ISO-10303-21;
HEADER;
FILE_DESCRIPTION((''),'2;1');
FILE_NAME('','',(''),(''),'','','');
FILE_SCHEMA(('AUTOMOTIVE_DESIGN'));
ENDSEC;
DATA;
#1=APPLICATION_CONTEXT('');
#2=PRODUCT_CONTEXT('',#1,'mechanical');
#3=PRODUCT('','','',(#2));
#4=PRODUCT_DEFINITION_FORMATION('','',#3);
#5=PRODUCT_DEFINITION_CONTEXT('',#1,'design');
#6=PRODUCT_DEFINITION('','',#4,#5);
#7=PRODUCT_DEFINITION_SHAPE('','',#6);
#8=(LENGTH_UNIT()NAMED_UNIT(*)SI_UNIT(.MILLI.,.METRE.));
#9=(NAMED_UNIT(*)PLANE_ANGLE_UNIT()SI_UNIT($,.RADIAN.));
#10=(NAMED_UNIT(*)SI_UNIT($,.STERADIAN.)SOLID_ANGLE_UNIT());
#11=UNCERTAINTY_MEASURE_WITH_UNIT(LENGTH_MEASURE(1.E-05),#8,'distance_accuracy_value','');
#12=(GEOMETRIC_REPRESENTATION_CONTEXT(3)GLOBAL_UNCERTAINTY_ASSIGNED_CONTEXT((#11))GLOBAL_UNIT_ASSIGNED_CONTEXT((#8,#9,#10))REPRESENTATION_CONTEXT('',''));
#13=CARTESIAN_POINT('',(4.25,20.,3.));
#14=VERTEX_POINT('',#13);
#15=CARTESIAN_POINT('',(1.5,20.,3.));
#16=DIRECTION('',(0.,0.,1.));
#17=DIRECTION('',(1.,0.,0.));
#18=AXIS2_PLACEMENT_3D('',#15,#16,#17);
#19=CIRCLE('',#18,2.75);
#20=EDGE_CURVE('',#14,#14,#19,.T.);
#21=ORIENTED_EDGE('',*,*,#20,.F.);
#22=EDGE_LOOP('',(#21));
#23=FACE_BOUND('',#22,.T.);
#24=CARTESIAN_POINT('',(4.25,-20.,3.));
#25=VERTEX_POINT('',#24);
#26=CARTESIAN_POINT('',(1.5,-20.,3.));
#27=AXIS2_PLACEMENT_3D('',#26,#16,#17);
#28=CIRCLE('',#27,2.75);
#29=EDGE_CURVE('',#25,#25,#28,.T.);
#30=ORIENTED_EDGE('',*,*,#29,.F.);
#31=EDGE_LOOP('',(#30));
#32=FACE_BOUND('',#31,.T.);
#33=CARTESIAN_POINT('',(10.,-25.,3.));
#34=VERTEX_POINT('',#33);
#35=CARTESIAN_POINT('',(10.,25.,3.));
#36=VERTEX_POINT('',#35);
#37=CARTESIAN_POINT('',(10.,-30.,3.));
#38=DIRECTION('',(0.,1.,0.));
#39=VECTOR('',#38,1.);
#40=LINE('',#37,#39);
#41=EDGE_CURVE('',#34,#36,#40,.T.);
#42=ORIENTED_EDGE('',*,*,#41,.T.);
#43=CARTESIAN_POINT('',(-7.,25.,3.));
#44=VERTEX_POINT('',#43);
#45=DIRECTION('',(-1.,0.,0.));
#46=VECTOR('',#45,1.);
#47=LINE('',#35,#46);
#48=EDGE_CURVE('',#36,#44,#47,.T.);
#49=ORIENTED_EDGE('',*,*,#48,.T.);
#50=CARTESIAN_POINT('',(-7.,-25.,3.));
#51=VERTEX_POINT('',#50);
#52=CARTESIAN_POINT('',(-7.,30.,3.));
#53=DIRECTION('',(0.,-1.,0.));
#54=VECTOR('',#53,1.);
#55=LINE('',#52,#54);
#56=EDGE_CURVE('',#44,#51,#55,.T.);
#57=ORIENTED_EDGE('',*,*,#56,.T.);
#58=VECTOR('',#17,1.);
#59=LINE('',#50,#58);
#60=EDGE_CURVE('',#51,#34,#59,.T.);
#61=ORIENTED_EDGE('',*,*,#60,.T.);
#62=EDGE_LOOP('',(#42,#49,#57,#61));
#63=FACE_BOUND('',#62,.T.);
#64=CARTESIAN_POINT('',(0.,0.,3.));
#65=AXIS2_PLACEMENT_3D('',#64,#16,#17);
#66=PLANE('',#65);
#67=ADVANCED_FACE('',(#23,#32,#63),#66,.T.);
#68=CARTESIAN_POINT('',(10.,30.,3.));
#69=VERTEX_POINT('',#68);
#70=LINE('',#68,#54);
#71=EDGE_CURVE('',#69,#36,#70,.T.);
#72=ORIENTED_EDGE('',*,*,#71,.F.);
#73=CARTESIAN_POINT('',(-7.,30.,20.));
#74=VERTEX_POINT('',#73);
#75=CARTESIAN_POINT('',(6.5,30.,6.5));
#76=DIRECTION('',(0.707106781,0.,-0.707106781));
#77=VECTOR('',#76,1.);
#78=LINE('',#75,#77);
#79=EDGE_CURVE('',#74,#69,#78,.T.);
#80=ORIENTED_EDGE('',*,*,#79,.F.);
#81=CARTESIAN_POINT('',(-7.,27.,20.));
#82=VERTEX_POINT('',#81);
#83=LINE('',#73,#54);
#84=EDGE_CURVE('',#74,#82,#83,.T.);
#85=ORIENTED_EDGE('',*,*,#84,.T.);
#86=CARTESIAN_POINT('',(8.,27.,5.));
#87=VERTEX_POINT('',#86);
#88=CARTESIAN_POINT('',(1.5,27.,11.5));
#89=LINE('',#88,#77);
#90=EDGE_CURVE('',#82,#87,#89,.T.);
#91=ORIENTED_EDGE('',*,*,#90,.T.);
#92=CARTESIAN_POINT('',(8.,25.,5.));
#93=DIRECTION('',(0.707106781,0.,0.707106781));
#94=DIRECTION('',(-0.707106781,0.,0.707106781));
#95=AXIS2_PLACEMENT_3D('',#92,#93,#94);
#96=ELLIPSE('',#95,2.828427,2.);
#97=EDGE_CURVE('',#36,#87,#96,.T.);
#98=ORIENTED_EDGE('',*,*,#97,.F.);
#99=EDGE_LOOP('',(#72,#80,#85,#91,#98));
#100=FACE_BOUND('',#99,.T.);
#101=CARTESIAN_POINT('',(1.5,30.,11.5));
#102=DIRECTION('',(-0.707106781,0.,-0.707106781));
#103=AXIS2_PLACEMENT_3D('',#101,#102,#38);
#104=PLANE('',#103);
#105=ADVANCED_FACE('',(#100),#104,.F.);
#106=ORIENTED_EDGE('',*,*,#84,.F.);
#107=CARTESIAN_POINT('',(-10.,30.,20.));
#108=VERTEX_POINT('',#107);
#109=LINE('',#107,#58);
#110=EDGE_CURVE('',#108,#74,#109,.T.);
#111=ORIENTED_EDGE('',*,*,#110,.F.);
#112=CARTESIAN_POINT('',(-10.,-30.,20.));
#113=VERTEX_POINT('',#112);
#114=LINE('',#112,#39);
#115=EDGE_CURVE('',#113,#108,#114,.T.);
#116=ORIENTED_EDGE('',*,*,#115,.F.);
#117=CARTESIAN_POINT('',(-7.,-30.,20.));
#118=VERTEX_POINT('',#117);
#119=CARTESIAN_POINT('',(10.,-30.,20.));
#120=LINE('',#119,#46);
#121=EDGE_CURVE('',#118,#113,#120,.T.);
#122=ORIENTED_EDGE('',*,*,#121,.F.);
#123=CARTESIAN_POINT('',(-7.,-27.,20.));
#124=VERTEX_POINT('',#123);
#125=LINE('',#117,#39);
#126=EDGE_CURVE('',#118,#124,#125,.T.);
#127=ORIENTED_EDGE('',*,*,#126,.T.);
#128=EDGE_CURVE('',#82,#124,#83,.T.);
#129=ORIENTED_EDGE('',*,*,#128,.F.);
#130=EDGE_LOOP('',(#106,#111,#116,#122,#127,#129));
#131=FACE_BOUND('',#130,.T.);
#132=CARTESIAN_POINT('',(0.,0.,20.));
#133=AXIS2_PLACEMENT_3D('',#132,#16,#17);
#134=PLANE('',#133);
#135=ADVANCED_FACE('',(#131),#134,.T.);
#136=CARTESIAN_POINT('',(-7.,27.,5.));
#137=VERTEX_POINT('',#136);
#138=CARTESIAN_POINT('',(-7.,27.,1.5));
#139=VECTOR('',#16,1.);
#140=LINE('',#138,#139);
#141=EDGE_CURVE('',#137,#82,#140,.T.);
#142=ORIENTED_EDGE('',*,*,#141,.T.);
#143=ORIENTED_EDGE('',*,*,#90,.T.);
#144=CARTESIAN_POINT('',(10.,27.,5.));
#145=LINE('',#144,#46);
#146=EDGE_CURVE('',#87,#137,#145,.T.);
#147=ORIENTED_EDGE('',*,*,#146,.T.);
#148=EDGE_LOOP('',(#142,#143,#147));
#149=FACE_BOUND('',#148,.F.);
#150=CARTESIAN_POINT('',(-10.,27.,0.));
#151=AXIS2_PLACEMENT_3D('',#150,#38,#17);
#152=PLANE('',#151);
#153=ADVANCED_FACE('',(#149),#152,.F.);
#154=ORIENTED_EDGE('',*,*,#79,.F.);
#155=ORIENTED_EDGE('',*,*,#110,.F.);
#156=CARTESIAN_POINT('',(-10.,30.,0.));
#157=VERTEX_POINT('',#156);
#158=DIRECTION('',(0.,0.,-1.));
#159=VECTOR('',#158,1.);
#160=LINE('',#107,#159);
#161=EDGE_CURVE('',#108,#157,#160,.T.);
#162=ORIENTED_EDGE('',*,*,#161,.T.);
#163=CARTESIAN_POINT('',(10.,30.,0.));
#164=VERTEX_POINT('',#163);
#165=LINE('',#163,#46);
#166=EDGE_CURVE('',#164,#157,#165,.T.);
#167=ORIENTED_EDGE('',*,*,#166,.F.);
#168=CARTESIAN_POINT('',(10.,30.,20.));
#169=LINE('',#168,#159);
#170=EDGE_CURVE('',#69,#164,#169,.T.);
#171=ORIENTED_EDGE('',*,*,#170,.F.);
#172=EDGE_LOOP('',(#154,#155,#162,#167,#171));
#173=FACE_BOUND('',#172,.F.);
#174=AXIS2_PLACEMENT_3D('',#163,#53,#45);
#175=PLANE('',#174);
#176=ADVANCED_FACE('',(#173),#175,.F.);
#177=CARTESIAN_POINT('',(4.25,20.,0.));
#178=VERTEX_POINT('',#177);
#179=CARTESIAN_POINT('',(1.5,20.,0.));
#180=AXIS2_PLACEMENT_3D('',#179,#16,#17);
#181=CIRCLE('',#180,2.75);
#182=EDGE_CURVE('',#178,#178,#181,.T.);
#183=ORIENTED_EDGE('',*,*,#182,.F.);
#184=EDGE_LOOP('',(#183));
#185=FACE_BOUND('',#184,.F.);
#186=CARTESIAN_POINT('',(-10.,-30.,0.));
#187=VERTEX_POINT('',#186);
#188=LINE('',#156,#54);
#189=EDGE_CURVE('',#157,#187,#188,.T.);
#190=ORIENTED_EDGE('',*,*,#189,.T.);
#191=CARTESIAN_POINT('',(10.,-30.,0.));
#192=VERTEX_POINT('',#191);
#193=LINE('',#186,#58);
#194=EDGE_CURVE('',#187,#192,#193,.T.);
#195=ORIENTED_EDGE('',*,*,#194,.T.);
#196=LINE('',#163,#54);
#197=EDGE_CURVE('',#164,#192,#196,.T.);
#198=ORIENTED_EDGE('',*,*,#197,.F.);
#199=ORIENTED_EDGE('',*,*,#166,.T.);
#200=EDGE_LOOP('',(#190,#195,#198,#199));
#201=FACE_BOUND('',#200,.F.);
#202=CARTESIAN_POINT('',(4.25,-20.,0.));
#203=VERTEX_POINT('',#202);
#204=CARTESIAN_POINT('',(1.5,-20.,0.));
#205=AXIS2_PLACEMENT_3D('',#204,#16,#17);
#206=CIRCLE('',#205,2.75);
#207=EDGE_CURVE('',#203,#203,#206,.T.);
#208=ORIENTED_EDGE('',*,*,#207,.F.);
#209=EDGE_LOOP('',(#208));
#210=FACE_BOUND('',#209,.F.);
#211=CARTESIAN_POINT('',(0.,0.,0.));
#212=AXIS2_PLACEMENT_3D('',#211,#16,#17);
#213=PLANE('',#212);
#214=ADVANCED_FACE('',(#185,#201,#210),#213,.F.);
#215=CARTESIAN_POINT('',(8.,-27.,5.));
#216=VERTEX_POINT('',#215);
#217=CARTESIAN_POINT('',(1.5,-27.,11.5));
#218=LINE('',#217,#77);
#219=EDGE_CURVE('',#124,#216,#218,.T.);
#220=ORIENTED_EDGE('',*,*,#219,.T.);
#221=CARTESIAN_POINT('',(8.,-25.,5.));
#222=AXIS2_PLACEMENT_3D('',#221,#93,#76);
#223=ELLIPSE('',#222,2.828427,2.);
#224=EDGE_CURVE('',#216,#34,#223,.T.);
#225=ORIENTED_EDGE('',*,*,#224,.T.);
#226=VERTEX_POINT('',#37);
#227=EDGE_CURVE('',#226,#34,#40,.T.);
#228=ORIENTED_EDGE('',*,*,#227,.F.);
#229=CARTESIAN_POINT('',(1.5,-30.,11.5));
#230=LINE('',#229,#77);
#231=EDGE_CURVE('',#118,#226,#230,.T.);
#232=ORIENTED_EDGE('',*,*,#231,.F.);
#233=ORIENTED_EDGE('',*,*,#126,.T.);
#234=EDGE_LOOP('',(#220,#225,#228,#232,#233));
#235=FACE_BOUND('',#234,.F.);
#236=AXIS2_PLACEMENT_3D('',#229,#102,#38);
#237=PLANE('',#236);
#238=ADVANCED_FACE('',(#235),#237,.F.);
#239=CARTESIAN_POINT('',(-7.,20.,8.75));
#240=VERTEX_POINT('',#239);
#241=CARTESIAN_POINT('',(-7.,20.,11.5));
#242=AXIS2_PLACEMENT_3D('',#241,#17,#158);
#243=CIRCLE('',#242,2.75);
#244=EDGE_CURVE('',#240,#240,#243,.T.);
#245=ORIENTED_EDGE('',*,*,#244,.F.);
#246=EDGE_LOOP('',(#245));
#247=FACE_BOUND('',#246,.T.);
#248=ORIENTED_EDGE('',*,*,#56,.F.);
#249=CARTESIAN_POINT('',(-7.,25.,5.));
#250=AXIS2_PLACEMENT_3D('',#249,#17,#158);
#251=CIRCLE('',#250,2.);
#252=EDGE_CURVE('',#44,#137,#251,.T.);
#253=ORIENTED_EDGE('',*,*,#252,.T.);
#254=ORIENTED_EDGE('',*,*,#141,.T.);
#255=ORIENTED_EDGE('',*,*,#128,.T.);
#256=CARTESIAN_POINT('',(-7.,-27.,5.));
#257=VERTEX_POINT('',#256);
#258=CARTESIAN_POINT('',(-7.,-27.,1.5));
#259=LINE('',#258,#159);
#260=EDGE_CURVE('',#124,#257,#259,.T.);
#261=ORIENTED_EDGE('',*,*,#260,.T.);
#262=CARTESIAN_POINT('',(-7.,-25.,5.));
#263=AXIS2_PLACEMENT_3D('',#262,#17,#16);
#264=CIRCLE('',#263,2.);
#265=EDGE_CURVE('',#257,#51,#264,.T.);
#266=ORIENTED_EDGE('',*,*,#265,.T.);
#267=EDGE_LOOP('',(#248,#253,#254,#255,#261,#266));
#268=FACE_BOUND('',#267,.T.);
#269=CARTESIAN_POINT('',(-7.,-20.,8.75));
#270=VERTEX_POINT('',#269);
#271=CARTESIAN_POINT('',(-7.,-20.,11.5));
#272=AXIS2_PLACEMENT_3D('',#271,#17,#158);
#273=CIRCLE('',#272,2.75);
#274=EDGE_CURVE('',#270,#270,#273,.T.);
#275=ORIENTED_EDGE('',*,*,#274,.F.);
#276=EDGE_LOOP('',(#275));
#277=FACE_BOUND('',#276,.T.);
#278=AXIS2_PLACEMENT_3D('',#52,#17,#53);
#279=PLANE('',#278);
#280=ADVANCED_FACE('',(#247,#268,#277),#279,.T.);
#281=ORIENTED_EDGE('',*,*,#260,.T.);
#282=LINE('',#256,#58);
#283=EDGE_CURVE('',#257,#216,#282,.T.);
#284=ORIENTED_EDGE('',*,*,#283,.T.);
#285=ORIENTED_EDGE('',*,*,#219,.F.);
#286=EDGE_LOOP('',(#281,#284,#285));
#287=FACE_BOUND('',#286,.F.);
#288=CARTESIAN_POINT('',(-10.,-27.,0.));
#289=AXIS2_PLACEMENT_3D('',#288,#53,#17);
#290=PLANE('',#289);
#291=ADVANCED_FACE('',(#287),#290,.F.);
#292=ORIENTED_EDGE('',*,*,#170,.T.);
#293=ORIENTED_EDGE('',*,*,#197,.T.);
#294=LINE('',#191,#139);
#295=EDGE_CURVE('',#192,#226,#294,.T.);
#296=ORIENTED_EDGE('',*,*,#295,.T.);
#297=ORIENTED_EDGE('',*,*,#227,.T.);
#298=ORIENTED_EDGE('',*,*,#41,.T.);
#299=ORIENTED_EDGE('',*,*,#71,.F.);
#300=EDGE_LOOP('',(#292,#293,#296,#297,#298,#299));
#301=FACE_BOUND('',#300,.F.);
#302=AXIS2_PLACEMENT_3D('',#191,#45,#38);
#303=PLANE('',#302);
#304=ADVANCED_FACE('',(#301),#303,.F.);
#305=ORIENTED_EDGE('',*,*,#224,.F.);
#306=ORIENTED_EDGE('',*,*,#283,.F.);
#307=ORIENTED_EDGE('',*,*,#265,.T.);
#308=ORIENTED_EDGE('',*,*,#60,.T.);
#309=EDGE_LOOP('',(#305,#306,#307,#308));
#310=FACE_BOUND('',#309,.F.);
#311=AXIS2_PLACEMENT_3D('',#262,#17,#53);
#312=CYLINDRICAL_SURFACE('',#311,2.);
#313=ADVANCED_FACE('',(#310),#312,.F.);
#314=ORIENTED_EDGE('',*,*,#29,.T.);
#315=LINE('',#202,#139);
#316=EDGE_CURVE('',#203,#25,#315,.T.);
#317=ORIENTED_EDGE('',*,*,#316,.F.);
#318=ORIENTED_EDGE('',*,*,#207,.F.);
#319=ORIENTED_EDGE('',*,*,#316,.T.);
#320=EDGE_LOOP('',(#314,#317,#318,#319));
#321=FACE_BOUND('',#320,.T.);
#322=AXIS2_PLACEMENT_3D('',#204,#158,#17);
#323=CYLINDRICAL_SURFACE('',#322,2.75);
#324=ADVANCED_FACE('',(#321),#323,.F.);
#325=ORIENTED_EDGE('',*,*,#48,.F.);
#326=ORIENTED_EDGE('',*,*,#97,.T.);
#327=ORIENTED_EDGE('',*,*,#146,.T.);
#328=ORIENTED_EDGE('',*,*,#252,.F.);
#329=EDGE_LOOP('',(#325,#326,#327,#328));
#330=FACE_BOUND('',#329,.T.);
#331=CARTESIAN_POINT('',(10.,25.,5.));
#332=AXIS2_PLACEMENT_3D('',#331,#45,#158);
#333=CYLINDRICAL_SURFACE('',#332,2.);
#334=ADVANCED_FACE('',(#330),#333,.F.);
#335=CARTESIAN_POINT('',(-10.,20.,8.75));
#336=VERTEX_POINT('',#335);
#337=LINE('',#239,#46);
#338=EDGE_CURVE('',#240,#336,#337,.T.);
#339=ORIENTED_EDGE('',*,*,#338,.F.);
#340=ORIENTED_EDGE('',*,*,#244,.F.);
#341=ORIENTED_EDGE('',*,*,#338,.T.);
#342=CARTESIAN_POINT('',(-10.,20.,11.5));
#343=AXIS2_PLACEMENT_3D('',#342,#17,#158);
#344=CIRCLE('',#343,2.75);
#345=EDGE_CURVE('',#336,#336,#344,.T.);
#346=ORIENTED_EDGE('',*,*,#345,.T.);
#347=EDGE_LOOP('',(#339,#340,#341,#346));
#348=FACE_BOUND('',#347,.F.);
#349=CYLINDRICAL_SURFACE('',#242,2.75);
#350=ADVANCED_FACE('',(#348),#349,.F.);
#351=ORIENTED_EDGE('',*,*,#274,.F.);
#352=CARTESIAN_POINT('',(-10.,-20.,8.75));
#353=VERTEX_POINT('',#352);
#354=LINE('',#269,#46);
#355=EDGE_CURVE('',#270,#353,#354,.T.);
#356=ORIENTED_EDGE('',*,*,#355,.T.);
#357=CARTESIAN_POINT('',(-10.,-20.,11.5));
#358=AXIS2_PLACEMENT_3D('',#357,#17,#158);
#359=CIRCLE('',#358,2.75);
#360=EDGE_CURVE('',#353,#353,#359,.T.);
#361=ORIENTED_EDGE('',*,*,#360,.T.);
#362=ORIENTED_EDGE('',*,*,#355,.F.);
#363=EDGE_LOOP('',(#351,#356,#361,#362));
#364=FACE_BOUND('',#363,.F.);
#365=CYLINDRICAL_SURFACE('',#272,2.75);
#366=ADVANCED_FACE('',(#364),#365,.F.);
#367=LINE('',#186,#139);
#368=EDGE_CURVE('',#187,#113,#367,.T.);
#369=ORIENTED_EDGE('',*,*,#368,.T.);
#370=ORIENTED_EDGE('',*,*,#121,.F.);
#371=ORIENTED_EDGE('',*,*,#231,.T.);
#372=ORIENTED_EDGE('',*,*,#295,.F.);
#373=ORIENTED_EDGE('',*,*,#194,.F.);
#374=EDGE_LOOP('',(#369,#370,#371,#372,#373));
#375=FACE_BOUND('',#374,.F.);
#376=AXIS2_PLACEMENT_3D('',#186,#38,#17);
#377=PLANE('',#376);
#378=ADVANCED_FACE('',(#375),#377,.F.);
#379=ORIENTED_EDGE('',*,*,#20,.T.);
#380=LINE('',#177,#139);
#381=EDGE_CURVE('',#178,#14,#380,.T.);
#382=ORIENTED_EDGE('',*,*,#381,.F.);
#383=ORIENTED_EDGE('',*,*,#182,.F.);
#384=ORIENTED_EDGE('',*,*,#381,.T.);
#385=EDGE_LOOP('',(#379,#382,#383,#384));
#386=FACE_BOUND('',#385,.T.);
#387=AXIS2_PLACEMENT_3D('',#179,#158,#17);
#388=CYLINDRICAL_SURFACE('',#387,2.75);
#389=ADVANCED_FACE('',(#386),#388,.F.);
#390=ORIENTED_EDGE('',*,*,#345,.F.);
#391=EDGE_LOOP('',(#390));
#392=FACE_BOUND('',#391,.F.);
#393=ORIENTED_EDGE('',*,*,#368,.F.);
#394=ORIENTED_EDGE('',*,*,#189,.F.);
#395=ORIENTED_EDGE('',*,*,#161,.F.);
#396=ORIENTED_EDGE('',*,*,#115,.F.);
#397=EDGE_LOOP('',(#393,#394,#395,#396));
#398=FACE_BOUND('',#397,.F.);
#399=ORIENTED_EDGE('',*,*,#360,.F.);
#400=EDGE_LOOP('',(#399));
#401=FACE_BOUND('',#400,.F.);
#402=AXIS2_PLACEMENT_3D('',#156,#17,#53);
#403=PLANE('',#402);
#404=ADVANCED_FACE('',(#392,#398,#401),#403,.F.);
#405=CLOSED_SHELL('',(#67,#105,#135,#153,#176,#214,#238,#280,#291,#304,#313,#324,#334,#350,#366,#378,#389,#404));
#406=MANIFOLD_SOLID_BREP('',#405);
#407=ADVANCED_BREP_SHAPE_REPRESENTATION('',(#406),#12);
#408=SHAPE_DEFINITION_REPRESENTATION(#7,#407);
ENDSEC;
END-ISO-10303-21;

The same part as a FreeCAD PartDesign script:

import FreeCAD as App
import Part
import Sketcher

V = App.Vector
Q = App.Units.Quantity


def edges_at(feature, points):
    """Names of the edges that pass closest to the given points."""
    edges = feature.Shape.Edges
    near = lambda p: min(range(len(edges)), key=lambda i: edges[i].distToShape(Part.Vertex(*p))[0])
    return sorted({f"Edge{near(p) + 1}" for p in points})

doc = App.newDocument("Part")
body = doc.addObject("PartDesign::Body", "Body")

# Sketch on XY plane
sketch1 = body.newObject("Sketcher::SketchObject", "Sketch")
sketch1.AttachmentSupport = (doc.getObject("XY_Plane"), [""])
sketch1.MapMode = "FlatFace"
sketch1.addGeometry(Part.LineSegment(V(-10, 30, 0), V(-10, -30, 0)), False)
sketch1.addGeometry(Part.LineSegment(V(-10, -30, 0), V(10, -30, 0)), False)
sketch1.addGeometry(Part.LineSegment(V(10, -30, 0), V(10, 30, 0)), False)
sketch1.addGeometry(Part.LineSegment(V(10, 30, 0), V(-10, 30, 0)), False)
sketch1.addGeometry(Part.Circle(V(1.5, -20, 0), V(0, 0, 1), 2.8), False)
sketch1.addGeometry(Part.Circle(V(1.5, 20, 0), V(0, 0, 1), 2.8), False)
sketch1.addConstraint(Sketcher.Constraint("Coincident", 0, 2, 1, 1))
sketch1.addConstraint(Sketcher.Constraint("Coincident", 1, 2, 2, 1))
sketch1.addConstraint(Sketcher.Constraint("Coincident", 2, 2, 3, 1))
sketch1.addConstraint(Sketcher.Constraint("Coincident", 3, 2, 0, 1))
sketch1.addConstraint(Sketcher.Constraint("Vertical", 0))
sketch1.addConstraint(Sketcher.Constraint("Horizontal", 1))
sketch1.addConstraint(Sketcher.Constraint("Vertical", 2))
sketch1.addConstraint(Sketcher.Constraint("Horizontal", 3))
sketch1.addConstraint(Sketcher.Constraint("Equal", 4, 5))
sketch1.addConstraint(Sketcher.Constraint("Symmetric", 0, 2, 2, 2, -1, 1))
sketch1.addConstraint(Sketcher.Constraint("Symmetric", 4, 3, 5, 3, -1))
sketch1.addConstraint(Sketcher.Constraint("Diameter", 4, Q("5.5 mm")))
sketch1.addConstraint(Sketcher.Constraint("DistanceX", 1, 1, 1, 2, Q("20 mm")))
sketch1.addConstraint(Sketcher.Constraint("DistanceY", 0, 2, 0, 1, Q("60 mm")))
sketch1.addConstraint(Sketcher.Constraint("DistanceY", 4, 3, -1, 1, Q("20 mm")))
sketch1.addConstraint(Sketcher.Constraint("DistanceX", 4, 3, 1, 2, Q("8.5 mm")))
pad1 = body.newObject("PartDesign::Pad", "Pad")
pad1.Profile = sketch1
pad1.Length = 3

# Sketch on XY plane
sketch2 = body.newObject("Sketcher::SketchObject", "Sketch001")
sketch2.AttachmentSupport = (doc.getObject("XY_Plane"), [""])
sketch2.MapMode = "FlatFace"
sketch2.AttachmentOffset = App.Placement(V(0, 0, 3), App.Rotation())
sketch2.addGeometry(Part.LineSegment(V(-7, -30, 0), V(-7, 30, 0)), False)
sketch2.addGeometry(Part.LineSegment(V(-7, 30, 0), V(-10, 30, 0)), False)
sketch2.addGeometry(Part.LineSegment(V(-10, 30, 0), V(-10, -30, 0)), False)
sketch2.addGeometry(Part.LineSegment(V(-10, -30, 0), V(-7, -30, 0)), False)
sketch2.addConstraint(Sketcher.Constraint("Coincident", 0, 2, 1, 1))
sketch2.addConstraint(Sketcher.Constraint("Coincident", 1, 2, 2, 1))
sketch2.addConstraint(Sketcher.Constraint("Coincident", 2, 2, 3, 1))
sketch2.addConstraint(Sketcher.Constraint("Coincident", 3, 2, 0, 1))
sketch2.addConstraint(Sketcher.Constraint("Vertical", 0))
sketch2.addConstraint(Sketcher.Constraint("Horizontal", 1))
sketch2.addConstraint(Sketcher.Constraint("Vertical", 2))
sketch2.addConstraint(Sketcher.Constraint("Horizontal", 3))
sketch2.addConstraint(Sketcher.Constraint("DistanceX", 1, 2, 1, 1, Q("3 mm")))
sketch2.addConstraint(Sketcher.Constraint("DistanceY", 0, 1, 0, 2, Q("60 mm")))
sketch2.addConstraint(Sketcher.Constraint("DistanceX", 0, 2, -1, 1, Q("7 mm")))
sketch2.addConstraint(Sketcher.Constraint("DistanceY", -1, 1, 0, 2, Q("30 mm")))
pad2 = body.newObject("PartDesign::Pad", "Pad001")
pad2.Profile = sketch2
pad2.Length = 17

# Sketch on XZ plane
sketch3 = body.newObject("Sketcher::SketchObject", "Sketch002")
sketch3.AttachmentSupport = (doc.getObject("XZ_Plane"), [""])
sketch3.MapMode = "FlatFace"
sketch3.AttachmentOffset = App.Placement(V(0, 0, -30), App.Rotation())
sketch3.addGeometry(Part.LineSegment(V(10, 0, 0), V(-10, 0, 0)), False)
sketch3.addGeometry(Part.LineSegment(V(-10, 0, 0), V(-10, 20, 0)), False)
sketch3.addGeometry(Part.LineSegment(V(-10, 20, 0), V(10, 20, 0)), False)
sketch3.addGeometry(Part.LineSegment(V(10, 20, 0), V(10, 0, 0)), False)
sketch3.addConstraint(Sketcher.Constraint("Coincident", 0, 2, 1, 1))
sketch3.addConstraint(Sketcher.Constraint("Coincident", 1, 2, 2, 1))
sketch3.addConstraint(Sketcher.Constraint("Coincident", 2, 2, 3, 1))
sketch3.addConstraint(Sketcher.Constraint("Coincident", 3, 2, 0, 1))
sketch3.addConstraint(Sketcher.Constraint("Horizontal", 0))
sketch3.addConstraint(Sketcher.Constraint("Vertical", 1))
sketch3.addConstraint(Sketcher.Constraint("Horizontal", 2))
sketch3.addConstraint(Sketcher.Constraint("Vertical", 3))
sketch3.addConstraint(Sketcher.Constraint("Symmetric", 0, 2, 3, 2, -1, 1))
sketch3.addConstraint(Sketcher.Constraint("Equal", 2, 1))
sketch3.addConstraint(Sketcher.Constraint("DistanceX", 0, 2, 0, 1, Q("20 mm")))
pad3 = body.newObject("PartDesign::Pad", "Pad002")
pad3.Profile = sketch3
pad3.Length = 3

# Sketch on XZ plane
sketch4 = body.newObject("Sketcher::SketchObject", "Sketch003")
sketch4.AttachmentSupport = (doc.getObject("XZ_Plane"), [""])
sketch4.MapMode = "FlatFace"
sketch4.AttachmentOffset = App.Placement(V(0, 0, 30), App.Rotation())
sketch4.addGeometry(Part.LineSegment(V(-10, 20, 0), V(-10, 0, 0)), False)
sketch4.addGeometry(Part.LineSegment(V(-10, 0, 0), V(10, 0, 0)), False)
sketch4.addGeometry(Part.LineSegment(V(10, 0, 0), V(10, 20, 0)), False)
sketch4.addGeometry(Part.LineSegment(V(10, 20, 0), V(-10, 20, 0)), False)
sketch4.addConstraint(Sketcher.Constraint("Coincident", 0, 2, 1, 1))
sketch4.addConstraint(Sketcher.Constraint("Coincident", 1, 2, 2, 1))
sketch4.addConstraint(Sketcher.Constraint("Coincident", 2, 2, 3, 1))
sketch4.addConstraint(Sketcher.Constraint("Coincident", 3, 2, 0, 1))
sketch4.addConstraint(Sketcher.Constraint("Vertical", 0))
sketch4.addConstraint(Sketcher.Constraint("Horizontal", 1))
sketch4.addConstraint(Sketcher.Constraint("Vertical", 2))
sketch4.addConstraint(Sketcher.Constraint("Horizontal", 3))
sketch4.addConstraint(Sketcher.Constraint("Symmetric", 0, 2, 1, 2, -1, 1))
sketch4.addConstraint(Sketcher.Constraint("Equal", 3, 0))
sketch4.addConstraint(Sketcher.Constraint("DistanceX", 1, 1, 1, 2, Q("20 mm")))
pad4 = body.newObject("PartDesign::Pad", "Pad003")
pad4.Profile = sketch4
pad4.Length = 3
pad4.Reversed = True
doc.recompute()

chamfer = body.newObject("PartDesign::Chamfer", "Chamfer")
chamfer.Base = (pad4, edges_at(pad4, [(10, -28.5, 20), (10, 28.5, 20)]))
chamfer.Size = 17
doc.recompute()

fillet = body.newObject("PartDesign::Fillet", "Fillet")
fillet.Base = (chamfer, edges_at(chamfer, [(1.5, 27, 3), (1.5, -27, 3)]))
fillet.Radius = 2

# Sketch on YZ plane
sketch5 = body.newObject("Sketcher::SketchObject", "Sketch004")
sketch5.AttachmentSupport = (doc.getObject("YZ_Plane"), [""])
sketch5.MapMode = "FlatFace"
sketch5.AttachmentOffset = App.Placement(V(0, 0, -7), App.Rotation())
sketch5.addGeometry(Part.Circle(V(-20, 11.5, 0), V(0, 0, 1), 2.8), False)
sketch5.addGeometry(Part.Circle(V(20, 11.5, 0), V(0, 0, 1), 2.8), False)
sketch5.addConstraint(Sketcher.Constraint("Equal", 0, 1))
sketch5.addConstraint(Sketcher.Constraint("Symmetric", 0, 3, 1, 3, -2))
sketch5.addConstraint(Sketcher.Constraint("Diameter", 0, Q("5.5 mm")))
sketch5.addConstraint(Sketcher.Constraint("DistanceX", 0, 3, -1, 1, Q("20 mm")))
sketch5.addConstraint(Sketcher.Constraint("DistanceY", -1, 1, 0, 3, Q("11.5 mm")))
pocket1 = body.newObject("PartDesign::Pocket", "Pocket")
pocket1.Profile = sketch5
pocket1.Length = 3

doc.recompute()
